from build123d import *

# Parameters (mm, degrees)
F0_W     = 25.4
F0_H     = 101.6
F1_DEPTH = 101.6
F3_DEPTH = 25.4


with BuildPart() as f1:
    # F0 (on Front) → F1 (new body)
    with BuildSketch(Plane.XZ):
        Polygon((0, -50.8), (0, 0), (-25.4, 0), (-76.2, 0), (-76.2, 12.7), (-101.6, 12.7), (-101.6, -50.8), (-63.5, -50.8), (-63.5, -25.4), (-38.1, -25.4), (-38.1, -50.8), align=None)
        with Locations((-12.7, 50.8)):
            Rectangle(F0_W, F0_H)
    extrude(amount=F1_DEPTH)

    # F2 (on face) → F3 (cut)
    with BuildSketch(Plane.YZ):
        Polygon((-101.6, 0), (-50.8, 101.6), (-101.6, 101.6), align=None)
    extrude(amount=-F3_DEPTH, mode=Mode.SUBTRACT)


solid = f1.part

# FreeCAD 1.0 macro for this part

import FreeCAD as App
import Part
import Sketcher
from FreeCAD import Vector
Q = App.Units.Quantity


def add_polygon(sketch, points):
    """Adds a closed chain of lines whose ends are joined by coincident constraints."""
    first, n = sketch.GeometryCount, len(points)
    for a, b in zip(points, points[1:] + points[:1]):
        sketch.addGeometry(Part.LineSegment(App.Vector(*a, 0), App.Vector(*b, 0)), False)
    for i in range(n):
        sketch.addConstraint(Sketcher.Constraint("Coincident", first + i, 2, first + (i + 1) % n, 1))

doc = App.newDocument("Part")
body = doc.addObject("PartDesign::Body", "Body")

sketch1 = doc.addObject("Sketcher::SketchObject", "Sketch")
body.addObject(sketch1)
sketch1.AttachmentSupport = (doc.XZ_Plane, [""])
sketch1.MapMode = "FlatFace"
add_polygon(sketch1, [(0, -51), (0, 102), (-25, 102), (-25, 0), (-76, 0), (-76, 13), (-102, 13), (-102, -51), (-64, -51), (-64, -25), (-38, -25), (-38, -51)])
sketch1.addConstraint([
    Sketcher.Constraint("Vertical", 0),
    Sketcher.Constraint("Horizontal", 1),
    Sketcher.Constraint("Vertical", 2),
    Sketcher.Constraint("Horizontal", 3),
    Sketcher.Constraint("Vertical", 4),
    Sketcher.Constraint("Horizontal", 5),
    Sketcher.Constraint("Vertical", 6),
    Sketcher.Constraint("Horizontal", 7),
    Sketcher.Constraint("Vertical", 8),
    Sketcher.Constraint("Horizontal", 9),
    Sketcher.Constraint("Vertical", 10),
    Sketcher.Constraint("Horizontal", 11),
    Sketcher.Constraint("PointOnObject", 0, 2, -2),
    Sketcher.Constraint("PointOnObject", 2, 2, -1),
    Sketcher.Constraint("Horizontal", 7, 2, 10, 2),
    Sketcher.Constraint("Equal", 1, 5),
    Sketcher.Constraint("Equal", 5, 9),
    Sketcher.Constraint("Equal", 7, 11),
    Sketcher.Constraint("Equal", 9, 8),
    Sketcher.Constraint("DistanceX", 1, 2, 1, 1, Q("1 in")),
    Sketcher.Constraint("DistanceX", 3, 2, 3, 1, Q("2 in")),
    Sketcher.Constraint("DistanceY", 0, 1, 0, 2, Q("6 in")),
    Sketcher.Constraint("DistanceY", 2, 2, 2, 1, Q("4 in")),
    Sketcher.Constraint("DistanceY", 4, 1, 4, 2, Q("0.5 in")),
])
pad1 = doc.addObject("PartDesign::Pad", "Pad")
body.addObject(pad1)
pad1.Profile = sketch1
pad1.Length = Q("4 in")

sketch2 = doc.addObject("Sketcher::SketchObject", "Sketch001")
body.addObject(sketch2)
sketch2.AttachmentSupport = (doc.YZ_Plane, [""])
sketch2.MapMode = "FlatFace"
add_polygon(sketch2, [(-102, 0), (-51, 102), (-102, 102)])
sketch2.addConstraint([
    Sketcher.Constraint("Horizontal", 1),
    Sketcher.Constraint("Vertical", 2),
    Sketcher.Constraint("PointOnObject", 2, 2, -1),
    Sketcher.Constraint("DistanceX", 1, 2, 1, 1, Q("2 in")),
    Sketcher.Constraint("DistanceY", 2, 2, 2, 1, Q("4 in")),
    Sketcher.Constraint("DistanceX", 0, 2, -1, 1, Q("2 in")),
])
pocket1 = doc.addObject("PartDesign::Pocket", "Pocket")
body.addObject(pocket1)
pocket1.Profile = sketch2
pocket1.Length = Q("1 in")

doc.recompute()
